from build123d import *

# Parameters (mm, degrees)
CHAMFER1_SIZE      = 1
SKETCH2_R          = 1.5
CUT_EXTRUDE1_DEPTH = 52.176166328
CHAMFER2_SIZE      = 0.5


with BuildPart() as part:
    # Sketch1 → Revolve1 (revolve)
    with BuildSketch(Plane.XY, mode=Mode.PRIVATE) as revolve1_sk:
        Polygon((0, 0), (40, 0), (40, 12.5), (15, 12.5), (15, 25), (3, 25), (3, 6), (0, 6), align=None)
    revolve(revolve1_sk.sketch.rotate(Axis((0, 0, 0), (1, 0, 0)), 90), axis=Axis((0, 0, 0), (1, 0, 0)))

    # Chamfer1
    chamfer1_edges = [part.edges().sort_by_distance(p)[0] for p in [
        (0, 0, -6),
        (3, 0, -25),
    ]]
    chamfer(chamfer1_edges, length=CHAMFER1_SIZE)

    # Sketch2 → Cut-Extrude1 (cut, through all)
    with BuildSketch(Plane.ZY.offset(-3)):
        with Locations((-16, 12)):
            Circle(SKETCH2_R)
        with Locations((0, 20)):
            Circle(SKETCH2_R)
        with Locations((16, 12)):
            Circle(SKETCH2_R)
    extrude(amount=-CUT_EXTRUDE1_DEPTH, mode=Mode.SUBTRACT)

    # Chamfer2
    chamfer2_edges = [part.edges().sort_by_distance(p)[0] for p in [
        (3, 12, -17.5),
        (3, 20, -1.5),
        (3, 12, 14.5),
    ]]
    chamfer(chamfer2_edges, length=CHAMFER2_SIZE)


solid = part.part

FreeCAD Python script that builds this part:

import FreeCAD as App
import Part
import Sketcher
from FreeCAD import Vector
Q = App.Units.Quantity


def edges_at(feature, points):
    """Names of the edges that pass closest to the given points."""
    edges = feature.Shape.Edges
    near = lambda p: min(range(len(edges)), key=lambda i: edges[i].distToShape(Part.Vertex(*p))[0])
    return sorted({f"Edge{near(p) + 1}" for p in points})

doc = App.newDocument("Part")
body = doc.addObject("PartDesign::Body", "Body")

sketch1 = body.newObject("Sketcher::SketchObject", "Sketch")
sketch1.AttachmentSupport = (doc.getObject("XY_Plane"), [""])
sketch1.MapMode = "FlatFace"
sketch1.addGeometry([
    Part.LineSegment(Vector(0, 0, 0), Vector(40, 0, 0)),
    Part.LineSegment(Vector(40, 0, 0), Vector(40, 12.5, 0)),
    Part.LineSegment(Vector(40, 12.5, 0), Vector(15, 12.5, 0)),
    Part.LineSegment(Vector(15, 12.5, 0), Vector(15, 25, 0)),
    Part.LineSegment(Vector(15, 25, 0), Vector(3, 25, 0)),
    Part.LineSegment(Vector(3, 25, 0), Vector(3, 6, 0)),
    Part.LineSegment(Vector(3, 6, 0), Vector(0, 6, 0)),
    Part.LineSegment(Vector(0, 6, 0), Vector(0, 0, 0)),
], False)
sketch1.addConstraint([
    Sketcher.Constraint("Coincident", 0, 2, 1, 1),
    Sketcher.Constraint("Coincident", 1, 2, 2, 1),
    Sketcher.Constraint("Coincident", 2, 2, 3, 1),
    Sketcher.Constraint("Coincident", 3, 2, 4, 1),
    Sketcher.Constraint("Coincident", 4, 2, 5, 1),
    Sketcher.Constraint("Coincident", 5, 2, 6, 1),
    Sketcher.Constraint("Coincident", 6, 2, 7, 1),
    Sketcher.Constraint("Coincident", 7, 2, 0, 1),
    Sketcher.Constraint("Horizontal", 0),
    Sketcher.Constraint("Vertical", 1),
    Sketcher.Constraint("Horizontal", 2),
    Sketcher.Constraint("Vertical", 3),
    Sketcher.Constraint("Horizontal", 4),
    Sketcher.Constraint("Vertical", 5),
    Sketcher.Constraint("Horizontal", 6),
    Sketcher.Constraint("Vertical", 7),
    Sketcher.Constraint("Coincident", 7, 2, -1, 1),
    Sketcher.Constraint("Equal", 1, 3),
    Sketcher.Constraint("DistanceX", 0, 1, 0, 2, Q("40 mm")),
    Sketcher.Constraint("DistanceX", 2, 2, 2, 1, Q("25 mm")),
    Sketcher.Constraint("DistanceX", 4, 2, 4, 1, Q("12 mm")),
    Sketcher.Constraint("DistanceY", 5, 2, 5, 1, Q("19 mm")),
    Sketcher.Constraint("DistanceY", 7, 2, 7, 1, Q("6 mm")),
])
revolution = body.newObject("PartDesign::Revolution", "Revolution")
revolution.Profile = sketch1
revolution.ReferenceAxis = (sketch1, ["H_Axis"])
revolution.Angle = 360
doc.recompute()

chamfer = body.newObject("PartDesign::Chamfer", "Chamfer")
chamfer.Base = (revolution, edges_at(revolution, [(0, 0, -6), (3, 0, -25)]))
chamfer.Size = 1

sketch2 = body.newObject("Sketcher::SketchObject", "Sketch001")
sketch2.AttachmentSupport = (doc.getObject("YZ_Plane"), [""])
sketch2.MapMode = "FlatFace"
sketch2.AttachmentOffset = App.Placement(Vector(0, 0, 3), App.Rotation())
sketch2.addGeometry([
    Part.Circle(Vector(12, -16, 0), Vector(0, 0, 1), 1.5),
    Part.Circle(Vector(20, 0, 0), Vector(0, 0, 1), 1.5),
    Part.Circle(Vector(12, 16, 0), Vector(0, 0, 1), 1.5),
], False)
sketch2.addConstraint([
    Sketcher.Constraint("Equal", 0, 1),
    Sketcher.Constraint("Equal", 1, 2),
    Sketcher.Constraint("Symmetric", 0, 3, 2, 3, -1),
    Sketcher.Constraint("PointOnObject", 1, 3, -1),
    Sketcher.Constraint("Diameter", 0, Q("3 mm")),
    Sketcher.Constraint("DistanceX", -1, 1, 0, 3, Q("12 mm")),
    Sketcher.Constraint("DistanceY", 0, 3, -1, 1, Q("16 mm")),
    Sketcher.Constraint("DistanceX", -1, 1, 1, 3, Q("20 mm")),
])
pocket1 = body.newObject("PartDesign::Pocket", "Pocket")
pocket1.Profile = sketch2
pocket1.Type = "ThroughAll"
pocket1.Reversed = True
doc.recompute()

chamfer2 = body.newObject("PartDesign::Chamfer", "Chamfer001")
chamfer2.Base = (pocket1, edges_at(pocket1, [(3, 12, -17.5), (3, 20, -1.5), (3, 12, 14.5)]))
chamfer2.Size = 0.5

doc.recompute()
